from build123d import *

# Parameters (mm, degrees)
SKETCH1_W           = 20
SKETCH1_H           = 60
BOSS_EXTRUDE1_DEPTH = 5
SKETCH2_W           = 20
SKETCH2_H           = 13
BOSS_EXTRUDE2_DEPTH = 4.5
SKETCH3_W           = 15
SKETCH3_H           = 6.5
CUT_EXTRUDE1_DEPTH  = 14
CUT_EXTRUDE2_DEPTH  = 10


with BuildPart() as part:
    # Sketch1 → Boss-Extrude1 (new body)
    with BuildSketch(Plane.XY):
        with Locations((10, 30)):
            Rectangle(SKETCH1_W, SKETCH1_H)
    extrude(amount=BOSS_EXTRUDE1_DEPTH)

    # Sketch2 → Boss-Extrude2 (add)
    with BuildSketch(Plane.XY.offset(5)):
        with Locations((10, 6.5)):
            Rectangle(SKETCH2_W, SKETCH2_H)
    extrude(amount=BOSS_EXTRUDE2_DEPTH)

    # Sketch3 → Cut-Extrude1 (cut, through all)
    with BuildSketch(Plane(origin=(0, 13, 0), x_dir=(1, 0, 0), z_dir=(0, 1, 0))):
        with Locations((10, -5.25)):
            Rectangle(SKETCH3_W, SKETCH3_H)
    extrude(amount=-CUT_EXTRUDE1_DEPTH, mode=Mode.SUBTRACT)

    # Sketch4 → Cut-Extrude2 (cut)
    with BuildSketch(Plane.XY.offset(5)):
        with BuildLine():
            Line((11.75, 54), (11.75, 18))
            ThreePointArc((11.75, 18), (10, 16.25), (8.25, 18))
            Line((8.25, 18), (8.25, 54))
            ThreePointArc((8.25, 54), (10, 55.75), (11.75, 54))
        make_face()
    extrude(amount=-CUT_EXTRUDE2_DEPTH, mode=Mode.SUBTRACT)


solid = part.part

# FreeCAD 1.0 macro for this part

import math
import FreeCAD as App
import Part
import Sketcher
Q = App.Units.Quantity

doc = App.newDocument("Part")
body = doc.addObject("PartDesign::Body", "Body")

# Sketch on XY plane
sketch1 = doc.addObject("Sketcher::SketchObject", "Sketch")
body.addObject(sketch1)
sketch1.AttachmentSupport = (doc.XY_Plane, [""])
sketch1.MapMode = "FlatFace"
sketch1.addGeometry(Part.LineSegment(App.Vector(0, 60, 0), App.Vector(0, 0, 0)), False)
sketch1.addGeometry(Part.LineSegment(App.Vector(0, 0, 0), App.Vector(20, 0, 0)), False)
sketch1.addGeometry(Part.LineSegment(App.Vector(20, 0, 0), App.Vector(20, 60, 0)), False)
sketch1.addGeometry(Part.LineSegment(App.Vector(20, 60, 0), App.Vector(0, 60, 0)), False)
sketch1.addConstraint(Sketcher.Constraint("Coincident", 0, 2, 1, 1))
sketch1.addConstraint(Sketcher.Constraint("Coincident", 1, 2, 2, 1))
sketch1.addConstraint(Sketcher.Constraint("Coincident", 2, 2, 3, 1))
sketch1.addConstraint(Sketcher.Constraint("Coincident", 3, 2, 0, 1))
sketch1.addConstraint(Sketcher.Constraint("Vertical", 0))
sketch1.addConstraint(Sketcher.Constraint("Horizontal", 1))
sketch1.addConstraint(Sketcher.Constraint("Vertical", 2))
sketch1.addConstraint(Sketcher.Constraint("Horizontal", 3))
sketch1.addConstraint(Sketcher.Constraint("Coincident", 0, 2, -1, 1))
sketch1.addConstraint(Sketcher.Constraint("DistanceX", 1, 1, 1, 2, Q("20 mm")))
sketch1.addConstraint(Sketcher.Constraint("DistanceY", 0, 2, 0, 1, Q("60 mm")))
pad1 = doc.addObject("PartDesign::Pad", "Pad")
body.addObject(pad1)
pad1.Profile = sketch1
pad1.Length = 5

# Sketch on XY plane
sketch2 = doc.addObject("Sketcher::SketchObject", "Sketch001")
body.addObject(sketch2)
sketch2.AttachmentSupport = (doc.XY_Plane, [""])
sketch2.MapMode = "FlatFace"
sketch2.AttachmentOffset = App.Placement(App.Vector(0, 0, 5), App.Rotation())
sketch2.addGeometry(Part.LineSegment(App.Vector(0, 13, 0), App.Vector(0, 0, 0)), False)
sketch2.addGeometry(Part.LineSegment(App.Vector(0, 0, 0), App.Vector(20, 0, 0)), False)
sketch2.addGeometry(Part.LineSegment(App.Vector(20, 0, 0), App.Vector(20, 13, 0)), False)
sketch2.addGeometry(Part.LineSegment(App.Vector(20, 13, 0), App.Vector(0, 13, 0)), False)
sketch2.addConstraint(Sketcher.Constraint("Coincident", 0, 2, 1, 1))
sketch2.addConstraint(Sketcher.Constraint("Coincident", 1, 2, 2, 1))
sketch2.addConstraint(Sketcher.Constraint("Coincident", 2, 2, 3, 1))
sketch2.addConstraint(Sketcher.Constraint("Coincident", 3, 2, 0, 1))
sketch2.addConstraint(Sketcher.Constraint("Vertical", 0))
sketch2.addConstraint(Sketcher.Constraint("Horizontal", 1))
sketch2.addConstraint(Sketcher.Constraint("Vertical", 2))
sketch2.addConstraint(Sketcher.Constraint("Horizontal", 3))
sketch2.addConstraint(Sketcher.Constraint("Coincident", 0, 2, -1, 1))
sketch2.addConstraint(Sketcher.Constraint("DistanceX", 1, 1, 1, 2, Q("20 mm")))
sketch2.addConstraint(Sketcher.Constraint("DistanceY", 0, 2, 0, 1, Q("13 mm")))
pad2 = doc.addObject("PartDesign::Pad", "Pad001")
body.addObject(pad2)
pad2.Profile = sketch2
pad2.Length = 4.5

# Sketch on XZ plane
sketch3 = doc.addObject("Sketcher::SketchObject", "Sketch002")
body.addObject(sketch3)
sketch3.AttachmentSupport = (doc.XZ_Plane, [""])
sketch3.MapMode = "FlatFace"
sketch3.AttachmentOffset = App.Placement(App.Vector(0, 0, -13), App.Rotation())
sketch3.addGeometry(Part.LineSegment(App.Vector(2, 2, 0), App.Vector(2, 8, 0)), False)
sketch3.addGeometry(Part.LineSegment(App.Vector(2, 8, 0), App.Vector(18, 8, 0)), False)
sketch3.addGeometry(Part.LineSegment(App.Vector(18, 8, 0), App.Vector(18, 2, 0)), False)
sketch3.addGeometry(Part.LineSegment(App.Vector(18, 2, 0), App.Vector(2, 2, 0)), False)
sketch3.addConstraint(Sketcher.Constraint("Coincident", 0, 2, 1, 1))
sketch3.addConstraint(Sketcher.Constraint("Coincident", 1, 2, 2, 1))
sketch3.addConstraint(Sketcher.Constraint("Coincident", 2, 2, 3, 1))
sketch3.addConstraint(Sketcher.Constraint("Coincident", 3, 2, 0, 1))
sketch3.addConstraint(Sketcher.Constraint("Vertical", 0))
sketch3.addConstraint(Sketcher.Constraint("Horizontal", 1))
sketch3.addConstraint(Sketcher.Constraint("Vertical", 2))
sketch3.addConstraint(Sketcher.Constraint("Horizontal", 3))
sketch3.addConstraint(Sketcher.Constraint("DistanceX", 1, 1, 1, 2, Q("15 mm")))
sketch3.addConstraint(Sketcher.Constraint("DistanceY", 0, 1, 0, 2, Q("6.5 mm")))
sketch3.addConstraint(Sketcher.Constraint("DistanceY", -1, 1, 2, 2, Q("2 mm")))
sketch3.addConstraint(Sketcher.Constraint("DistanceX", -1, 1, 0, 2, Q("2.5 mm")))
pocket1 = doc.addObject("PartDesign::Pocket", "Pocket")
body.addObject(pocket1)
pocket1.Profile = sketch3
pocket1.Type = "ThroughAll"
pocket1.Reversed = True

# Sketch on XY plane
sketch4 = doc.addObject("Sketcher::SketchObject", "Sketch003")
body.addObject(sketch4)
sketch4.AttachmentSupport = (doc.XY_Plane, [""])
sketch4.MapMode = "FlatFace"
sketch4.AttachmentOffset = App.Placement(App.Vector(0, 0, 5), App.Rotation())
sketch4.addGeometry(Part.LineSegment(App.Vector(11.8, 18, 0), App.Vector(11.8, 54, 0)), False)
sketch4.addGeometry(Part.ArcOfCircle(Part.Circle(App.Vector(10, 54, 0), App.Vector(0, 0, 1), 1.8), math.radians(0), math.radians(180)), False)
sketch4.addGeometry(Part.LineSegment(App.Vector(8.2, 54, 0), App.Vector(8.2, 18, 0)), False)
sketch4.addGeometry(Part.ArcOfCircle(Part.Circle(App.Vector(10, 18, 0), App.Vector(0, 0, 1), 1.8), math.radians(180), math.radians(360)), False)
sketch4.addConstraint(Sketcher.Constraint("Tangent", 0, 2, 1, 1))
sketch4.addConstraint(Sketcher.Constraint("Tangent", 1, 2, 2, 1))
sketch4.addConstraint(Sketcher.Constraint("Tangent", 2, 2, 3, 1))
sketch4.addConstraint(Sketcher.Constraint("Tangent", 3, 2, 0, 1))
sketch4.addConstraint(Sketcher.Constraint("Vertical", 0))
sketch4.addConstraint(Sketcher.Constraint("Vertical", 2))
sketch4.addConstraint(Sketcher.Constraint("DistanceY", 0, 1, 0, 2, Q("36 mm")))
sketch4.addConstraint(Sketcher.Constraint("Radius", 1, Q("1.75 mm")))
sketch4.addConstraint(Sketcher.Constraint("DistanceX", -1, 1, 1, 3, Q("10 mm")))
sketch4.addConstraint(Sketcher.Constraint("DistanceY", -1, 1, 1, 3, Q("54 mm")))
pocket2 = doc.addObject("PartDesign::Pocket", "Pocket001")
body.addObject(pocket2)
pocket2.Profile = sketch4
pocket2.Length = 10

doc.recompute()
